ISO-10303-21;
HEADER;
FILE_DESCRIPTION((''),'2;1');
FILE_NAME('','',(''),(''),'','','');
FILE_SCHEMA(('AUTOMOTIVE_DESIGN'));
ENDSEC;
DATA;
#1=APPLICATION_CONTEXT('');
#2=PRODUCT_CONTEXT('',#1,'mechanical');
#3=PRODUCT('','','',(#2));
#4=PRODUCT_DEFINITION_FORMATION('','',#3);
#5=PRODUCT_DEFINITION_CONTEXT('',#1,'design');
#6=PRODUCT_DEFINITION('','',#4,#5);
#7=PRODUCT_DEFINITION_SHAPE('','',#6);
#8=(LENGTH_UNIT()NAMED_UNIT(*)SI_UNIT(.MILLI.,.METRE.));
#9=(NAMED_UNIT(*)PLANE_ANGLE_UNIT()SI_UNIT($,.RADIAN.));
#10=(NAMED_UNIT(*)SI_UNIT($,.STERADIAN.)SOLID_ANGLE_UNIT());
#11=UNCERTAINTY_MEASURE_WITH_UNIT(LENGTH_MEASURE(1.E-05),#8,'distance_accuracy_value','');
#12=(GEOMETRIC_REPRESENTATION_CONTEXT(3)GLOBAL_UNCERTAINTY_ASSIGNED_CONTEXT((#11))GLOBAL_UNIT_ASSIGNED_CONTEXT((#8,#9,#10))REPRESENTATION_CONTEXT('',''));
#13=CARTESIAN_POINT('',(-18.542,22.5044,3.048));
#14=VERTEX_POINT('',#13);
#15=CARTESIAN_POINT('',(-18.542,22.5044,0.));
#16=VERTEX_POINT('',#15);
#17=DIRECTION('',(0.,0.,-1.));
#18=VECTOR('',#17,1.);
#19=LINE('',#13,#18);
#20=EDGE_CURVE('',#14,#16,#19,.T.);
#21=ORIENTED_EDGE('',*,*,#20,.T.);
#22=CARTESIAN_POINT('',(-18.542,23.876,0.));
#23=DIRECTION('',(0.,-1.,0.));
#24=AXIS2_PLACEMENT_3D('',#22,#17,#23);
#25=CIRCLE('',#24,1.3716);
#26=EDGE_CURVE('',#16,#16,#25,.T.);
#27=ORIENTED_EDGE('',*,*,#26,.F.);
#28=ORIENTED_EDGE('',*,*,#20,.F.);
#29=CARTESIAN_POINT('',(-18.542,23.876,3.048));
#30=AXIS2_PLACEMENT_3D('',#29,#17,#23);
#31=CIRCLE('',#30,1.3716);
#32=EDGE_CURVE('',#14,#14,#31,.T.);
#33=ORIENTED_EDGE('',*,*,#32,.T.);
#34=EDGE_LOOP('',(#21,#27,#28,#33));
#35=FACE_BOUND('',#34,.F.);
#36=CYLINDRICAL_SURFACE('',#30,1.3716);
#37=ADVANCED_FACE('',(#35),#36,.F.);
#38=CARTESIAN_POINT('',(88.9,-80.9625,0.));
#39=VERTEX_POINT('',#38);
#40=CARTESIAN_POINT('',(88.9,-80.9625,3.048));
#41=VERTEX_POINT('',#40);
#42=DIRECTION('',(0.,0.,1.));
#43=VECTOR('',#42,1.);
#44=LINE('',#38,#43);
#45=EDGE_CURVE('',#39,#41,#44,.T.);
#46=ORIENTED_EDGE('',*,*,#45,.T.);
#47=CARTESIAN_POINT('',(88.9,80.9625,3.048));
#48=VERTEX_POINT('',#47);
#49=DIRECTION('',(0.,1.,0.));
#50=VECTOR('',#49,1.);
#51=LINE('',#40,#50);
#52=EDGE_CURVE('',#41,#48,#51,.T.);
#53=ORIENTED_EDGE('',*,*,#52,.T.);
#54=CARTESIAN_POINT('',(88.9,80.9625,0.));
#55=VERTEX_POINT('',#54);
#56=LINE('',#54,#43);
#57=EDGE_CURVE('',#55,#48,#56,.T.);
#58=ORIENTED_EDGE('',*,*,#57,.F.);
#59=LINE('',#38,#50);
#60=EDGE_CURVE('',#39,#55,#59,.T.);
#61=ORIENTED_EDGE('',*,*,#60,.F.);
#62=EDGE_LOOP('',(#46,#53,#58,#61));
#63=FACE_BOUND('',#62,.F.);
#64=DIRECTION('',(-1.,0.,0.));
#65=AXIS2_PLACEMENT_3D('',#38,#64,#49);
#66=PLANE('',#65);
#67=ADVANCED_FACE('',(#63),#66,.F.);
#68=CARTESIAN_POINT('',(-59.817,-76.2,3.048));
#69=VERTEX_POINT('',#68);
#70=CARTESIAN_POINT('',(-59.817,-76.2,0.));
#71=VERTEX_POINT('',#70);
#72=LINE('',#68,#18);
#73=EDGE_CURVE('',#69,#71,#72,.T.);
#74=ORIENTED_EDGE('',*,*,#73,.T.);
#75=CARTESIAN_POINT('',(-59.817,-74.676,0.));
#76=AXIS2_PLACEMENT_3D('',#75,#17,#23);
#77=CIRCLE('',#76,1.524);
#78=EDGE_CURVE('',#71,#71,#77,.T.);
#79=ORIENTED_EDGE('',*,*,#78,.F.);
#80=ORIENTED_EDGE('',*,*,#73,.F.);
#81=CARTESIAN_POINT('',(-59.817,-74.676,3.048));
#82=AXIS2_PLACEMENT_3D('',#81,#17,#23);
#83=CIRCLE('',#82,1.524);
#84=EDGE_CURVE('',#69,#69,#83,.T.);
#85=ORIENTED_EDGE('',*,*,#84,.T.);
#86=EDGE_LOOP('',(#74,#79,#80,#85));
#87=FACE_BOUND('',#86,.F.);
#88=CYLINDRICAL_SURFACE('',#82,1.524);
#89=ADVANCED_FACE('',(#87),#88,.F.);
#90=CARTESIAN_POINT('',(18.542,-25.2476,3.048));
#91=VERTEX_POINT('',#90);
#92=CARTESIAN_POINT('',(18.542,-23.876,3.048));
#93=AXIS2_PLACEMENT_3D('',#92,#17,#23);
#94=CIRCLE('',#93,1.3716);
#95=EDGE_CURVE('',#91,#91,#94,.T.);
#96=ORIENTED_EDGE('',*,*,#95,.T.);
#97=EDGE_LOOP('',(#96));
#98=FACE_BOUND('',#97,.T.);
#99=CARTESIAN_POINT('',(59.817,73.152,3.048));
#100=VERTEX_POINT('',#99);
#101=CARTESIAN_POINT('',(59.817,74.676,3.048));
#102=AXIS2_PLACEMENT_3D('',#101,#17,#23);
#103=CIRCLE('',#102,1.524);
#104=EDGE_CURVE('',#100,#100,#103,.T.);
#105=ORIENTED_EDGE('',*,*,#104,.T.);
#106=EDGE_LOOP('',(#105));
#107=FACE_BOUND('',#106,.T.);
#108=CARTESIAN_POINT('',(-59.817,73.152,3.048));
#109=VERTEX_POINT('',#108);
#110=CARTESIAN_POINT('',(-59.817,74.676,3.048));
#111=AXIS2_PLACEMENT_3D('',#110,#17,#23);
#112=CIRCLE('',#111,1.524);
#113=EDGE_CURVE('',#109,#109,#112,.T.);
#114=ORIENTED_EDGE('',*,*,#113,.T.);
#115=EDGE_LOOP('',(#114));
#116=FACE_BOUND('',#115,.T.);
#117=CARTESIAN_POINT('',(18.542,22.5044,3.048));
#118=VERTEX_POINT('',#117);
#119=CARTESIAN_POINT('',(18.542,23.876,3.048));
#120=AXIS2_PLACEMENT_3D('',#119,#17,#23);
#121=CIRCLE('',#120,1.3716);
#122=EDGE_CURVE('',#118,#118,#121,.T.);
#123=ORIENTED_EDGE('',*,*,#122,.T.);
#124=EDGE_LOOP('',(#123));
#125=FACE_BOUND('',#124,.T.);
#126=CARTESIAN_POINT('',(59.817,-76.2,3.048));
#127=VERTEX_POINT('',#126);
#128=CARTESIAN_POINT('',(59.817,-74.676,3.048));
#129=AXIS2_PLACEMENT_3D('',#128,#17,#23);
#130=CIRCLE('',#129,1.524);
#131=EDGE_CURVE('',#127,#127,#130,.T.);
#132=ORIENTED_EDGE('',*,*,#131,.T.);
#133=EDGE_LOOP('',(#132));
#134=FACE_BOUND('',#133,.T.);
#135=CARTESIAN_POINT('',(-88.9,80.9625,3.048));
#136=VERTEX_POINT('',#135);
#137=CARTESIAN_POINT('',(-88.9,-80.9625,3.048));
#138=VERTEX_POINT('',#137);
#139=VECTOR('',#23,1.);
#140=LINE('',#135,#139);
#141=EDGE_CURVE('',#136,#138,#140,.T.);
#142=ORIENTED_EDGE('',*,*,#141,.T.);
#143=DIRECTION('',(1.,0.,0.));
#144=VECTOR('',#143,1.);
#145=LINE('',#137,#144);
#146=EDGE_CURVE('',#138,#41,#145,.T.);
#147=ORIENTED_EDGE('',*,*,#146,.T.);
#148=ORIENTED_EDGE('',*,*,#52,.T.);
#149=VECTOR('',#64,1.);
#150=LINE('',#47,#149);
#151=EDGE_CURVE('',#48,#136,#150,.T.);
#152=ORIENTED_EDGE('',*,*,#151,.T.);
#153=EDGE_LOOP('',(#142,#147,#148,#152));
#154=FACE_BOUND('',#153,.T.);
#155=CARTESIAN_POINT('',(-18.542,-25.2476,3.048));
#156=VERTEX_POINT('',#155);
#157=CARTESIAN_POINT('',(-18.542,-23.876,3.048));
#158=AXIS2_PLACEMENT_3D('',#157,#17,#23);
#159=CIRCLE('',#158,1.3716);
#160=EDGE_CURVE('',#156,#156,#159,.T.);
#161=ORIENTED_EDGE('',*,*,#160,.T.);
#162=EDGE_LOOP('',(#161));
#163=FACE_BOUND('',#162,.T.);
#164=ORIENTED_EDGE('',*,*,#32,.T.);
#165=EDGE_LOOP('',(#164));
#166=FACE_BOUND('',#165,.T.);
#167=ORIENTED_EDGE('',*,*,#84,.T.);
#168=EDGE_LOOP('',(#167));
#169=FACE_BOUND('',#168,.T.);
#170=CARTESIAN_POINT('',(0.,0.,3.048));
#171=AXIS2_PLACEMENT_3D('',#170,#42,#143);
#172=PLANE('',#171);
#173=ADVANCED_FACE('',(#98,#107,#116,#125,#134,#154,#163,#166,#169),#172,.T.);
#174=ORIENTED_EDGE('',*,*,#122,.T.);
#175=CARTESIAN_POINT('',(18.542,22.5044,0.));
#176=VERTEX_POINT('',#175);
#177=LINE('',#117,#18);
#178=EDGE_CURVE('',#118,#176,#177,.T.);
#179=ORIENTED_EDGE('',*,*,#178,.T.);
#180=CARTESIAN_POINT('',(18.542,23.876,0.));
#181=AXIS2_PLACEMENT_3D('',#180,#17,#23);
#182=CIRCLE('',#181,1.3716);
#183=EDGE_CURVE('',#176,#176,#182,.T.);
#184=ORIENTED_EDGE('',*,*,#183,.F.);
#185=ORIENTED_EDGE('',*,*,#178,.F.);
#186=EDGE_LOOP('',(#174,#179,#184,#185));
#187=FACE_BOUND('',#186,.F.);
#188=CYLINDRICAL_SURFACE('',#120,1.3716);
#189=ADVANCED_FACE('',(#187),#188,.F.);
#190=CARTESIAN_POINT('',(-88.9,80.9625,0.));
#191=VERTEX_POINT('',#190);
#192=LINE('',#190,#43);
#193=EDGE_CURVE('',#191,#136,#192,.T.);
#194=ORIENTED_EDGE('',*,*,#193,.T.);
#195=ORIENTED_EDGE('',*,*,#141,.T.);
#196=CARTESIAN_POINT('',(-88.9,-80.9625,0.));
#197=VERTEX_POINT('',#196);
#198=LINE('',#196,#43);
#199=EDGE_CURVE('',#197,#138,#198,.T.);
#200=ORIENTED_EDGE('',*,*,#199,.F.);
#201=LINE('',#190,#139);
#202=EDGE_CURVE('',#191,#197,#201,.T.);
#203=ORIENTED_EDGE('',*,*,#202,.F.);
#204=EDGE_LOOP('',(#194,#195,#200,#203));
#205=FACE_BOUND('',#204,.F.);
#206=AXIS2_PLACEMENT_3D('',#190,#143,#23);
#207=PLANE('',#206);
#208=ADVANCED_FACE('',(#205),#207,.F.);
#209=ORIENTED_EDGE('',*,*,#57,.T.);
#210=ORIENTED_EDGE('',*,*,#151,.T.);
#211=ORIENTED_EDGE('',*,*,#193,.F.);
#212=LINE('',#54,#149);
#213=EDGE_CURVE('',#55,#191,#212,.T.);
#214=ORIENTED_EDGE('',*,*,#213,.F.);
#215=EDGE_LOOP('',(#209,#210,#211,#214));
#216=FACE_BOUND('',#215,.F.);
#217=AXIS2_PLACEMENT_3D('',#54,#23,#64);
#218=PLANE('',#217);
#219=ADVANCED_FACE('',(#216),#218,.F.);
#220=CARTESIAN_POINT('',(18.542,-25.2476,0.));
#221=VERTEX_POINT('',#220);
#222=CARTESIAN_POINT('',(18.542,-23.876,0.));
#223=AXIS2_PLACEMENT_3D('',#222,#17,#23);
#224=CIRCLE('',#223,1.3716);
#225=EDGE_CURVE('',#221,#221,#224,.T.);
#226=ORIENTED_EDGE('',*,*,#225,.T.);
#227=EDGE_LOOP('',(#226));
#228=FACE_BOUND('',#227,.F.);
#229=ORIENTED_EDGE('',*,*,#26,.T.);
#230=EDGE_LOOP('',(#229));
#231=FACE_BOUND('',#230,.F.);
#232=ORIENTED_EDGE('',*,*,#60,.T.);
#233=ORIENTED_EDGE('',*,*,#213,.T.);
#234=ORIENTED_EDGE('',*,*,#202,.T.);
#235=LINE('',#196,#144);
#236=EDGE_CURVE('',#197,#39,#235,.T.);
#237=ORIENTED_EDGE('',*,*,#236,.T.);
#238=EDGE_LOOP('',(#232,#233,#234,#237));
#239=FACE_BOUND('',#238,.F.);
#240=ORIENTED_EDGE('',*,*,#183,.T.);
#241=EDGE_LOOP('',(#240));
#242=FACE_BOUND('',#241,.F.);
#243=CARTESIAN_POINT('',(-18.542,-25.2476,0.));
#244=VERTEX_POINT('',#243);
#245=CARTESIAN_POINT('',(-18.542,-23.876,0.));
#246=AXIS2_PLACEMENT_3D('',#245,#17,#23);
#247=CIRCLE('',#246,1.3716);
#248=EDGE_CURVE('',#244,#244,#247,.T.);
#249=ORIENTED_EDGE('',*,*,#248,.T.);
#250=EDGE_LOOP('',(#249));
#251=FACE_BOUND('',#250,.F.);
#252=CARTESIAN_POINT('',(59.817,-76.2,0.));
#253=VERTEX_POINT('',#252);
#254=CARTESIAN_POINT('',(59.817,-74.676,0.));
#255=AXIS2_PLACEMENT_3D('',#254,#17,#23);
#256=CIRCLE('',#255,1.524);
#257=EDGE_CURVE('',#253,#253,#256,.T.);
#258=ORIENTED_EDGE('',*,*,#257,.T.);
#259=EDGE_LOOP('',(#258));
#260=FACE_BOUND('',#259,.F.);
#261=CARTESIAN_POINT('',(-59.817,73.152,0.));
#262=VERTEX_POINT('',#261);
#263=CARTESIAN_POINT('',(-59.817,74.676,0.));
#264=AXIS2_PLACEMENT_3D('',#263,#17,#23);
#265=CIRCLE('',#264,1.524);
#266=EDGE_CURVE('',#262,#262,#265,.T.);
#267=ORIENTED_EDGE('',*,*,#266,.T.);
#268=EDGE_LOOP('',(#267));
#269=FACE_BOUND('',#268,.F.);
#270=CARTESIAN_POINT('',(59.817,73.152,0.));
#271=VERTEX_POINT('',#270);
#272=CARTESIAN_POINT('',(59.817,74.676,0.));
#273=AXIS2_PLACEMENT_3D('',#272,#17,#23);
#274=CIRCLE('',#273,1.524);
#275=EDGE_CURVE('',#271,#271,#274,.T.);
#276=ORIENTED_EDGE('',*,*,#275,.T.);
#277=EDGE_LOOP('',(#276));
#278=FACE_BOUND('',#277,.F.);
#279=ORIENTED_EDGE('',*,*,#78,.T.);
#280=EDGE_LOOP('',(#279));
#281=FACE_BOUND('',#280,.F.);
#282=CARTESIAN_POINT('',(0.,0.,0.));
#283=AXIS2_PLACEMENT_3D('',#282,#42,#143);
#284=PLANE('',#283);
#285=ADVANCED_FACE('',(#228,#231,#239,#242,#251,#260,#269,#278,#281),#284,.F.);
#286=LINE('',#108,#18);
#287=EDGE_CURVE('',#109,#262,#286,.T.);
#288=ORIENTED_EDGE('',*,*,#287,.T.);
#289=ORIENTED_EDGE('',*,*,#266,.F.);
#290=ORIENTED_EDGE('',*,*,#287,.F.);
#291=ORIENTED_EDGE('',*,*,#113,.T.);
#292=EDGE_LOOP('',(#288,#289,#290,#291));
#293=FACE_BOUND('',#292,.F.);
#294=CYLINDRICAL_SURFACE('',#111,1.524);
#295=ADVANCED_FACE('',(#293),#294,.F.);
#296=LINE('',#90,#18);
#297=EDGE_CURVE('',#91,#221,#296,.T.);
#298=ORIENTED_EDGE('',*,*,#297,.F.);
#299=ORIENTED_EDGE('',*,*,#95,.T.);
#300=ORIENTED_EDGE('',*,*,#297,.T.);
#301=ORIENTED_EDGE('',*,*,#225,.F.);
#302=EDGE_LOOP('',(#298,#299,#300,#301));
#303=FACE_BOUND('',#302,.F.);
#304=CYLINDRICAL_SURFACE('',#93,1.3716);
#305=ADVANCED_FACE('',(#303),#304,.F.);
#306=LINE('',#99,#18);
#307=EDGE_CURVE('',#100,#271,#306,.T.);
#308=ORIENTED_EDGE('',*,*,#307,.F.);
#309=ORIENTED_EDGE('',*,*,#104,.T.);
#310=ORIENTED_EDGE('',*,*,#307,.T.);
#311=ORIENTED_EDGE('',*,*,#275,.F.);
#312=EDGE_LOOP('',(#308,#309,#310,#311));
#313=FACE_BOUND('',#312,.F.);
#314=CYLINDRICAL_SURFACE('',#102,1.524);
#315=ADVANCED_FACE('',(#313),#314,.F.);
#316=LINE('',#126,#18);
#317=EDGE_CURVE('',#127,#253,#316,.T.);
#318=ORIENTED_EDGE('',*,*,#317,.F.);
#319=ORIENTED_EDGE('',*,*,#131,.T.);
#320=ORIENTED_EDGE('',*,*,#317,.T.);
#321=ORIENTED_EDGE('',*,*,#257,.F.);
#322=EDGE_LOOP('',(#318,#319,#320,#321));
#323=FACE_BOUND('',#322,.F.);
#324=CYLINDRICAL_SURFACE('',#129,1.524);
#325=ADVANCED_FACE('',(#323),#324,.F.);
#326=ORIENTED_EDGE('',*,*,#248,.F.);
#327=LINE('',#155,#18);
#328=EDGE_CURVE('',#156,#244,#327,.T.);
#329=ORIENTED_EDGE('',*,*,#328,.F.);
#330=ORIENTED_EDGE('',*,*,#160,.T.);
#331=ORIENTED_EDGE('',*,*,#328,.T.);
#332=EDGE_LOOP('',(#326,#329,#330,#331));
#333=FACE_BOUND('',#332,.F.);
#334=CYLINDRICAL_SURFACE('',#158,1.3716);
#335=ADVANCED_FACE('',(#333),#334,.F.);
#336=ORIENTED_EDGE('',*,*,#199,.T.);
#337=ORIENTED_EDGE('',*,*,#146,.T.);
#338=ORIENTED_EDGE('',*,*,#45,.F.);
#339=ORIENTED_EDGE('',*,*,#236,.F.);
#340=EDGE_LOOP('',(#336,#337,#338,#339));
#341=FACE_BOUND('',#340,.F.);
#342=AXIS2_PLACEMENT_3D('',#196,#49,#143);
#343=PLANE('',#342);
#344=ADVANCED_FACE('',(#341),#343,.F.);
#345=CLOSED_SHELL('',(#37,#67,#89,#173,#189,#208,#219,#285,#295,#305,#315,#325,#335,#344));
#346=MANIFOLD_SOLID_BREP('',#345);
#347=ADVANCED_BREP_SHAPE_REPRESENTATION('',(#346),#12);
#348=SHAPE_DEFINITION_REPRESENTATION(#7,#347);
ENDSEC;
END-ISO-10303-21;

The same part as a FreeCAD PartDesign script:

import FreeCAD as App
import Part
import Sketcher
Q = App.Units.Quantity

doc = App.newDocument("Part")
body = doc.addObject("PartDesign::Body", "Body")

# Sketch on XY plane
sketch1 = doc.addObject("Sketcher::SketchObject", "Sketch")
body.addObject(sketch1)
sketch1.AttachmentSupport = (doc.XY_Plane, [""])
sketch1.MapMode = "FlatFace"
sketch1.addGeometry([
    Part.LineSegment(App.Vector(-89, 81, 0), App.Vector(-89, -81, 0)),
    Part.LineSegment(App.Vector(-89, -81, 0), App.Vector(89, -81, 0)),
    Part.LineSegment(App.Vector(89, -81, 0), App.Vector(89, 81, 0)),
    Part.LineSegment(App.Vector(89, 81, 0), App.Vector(-89, 81, 0)),
], False)
sketch1.addConstraint([
    Sketcher.Constraint("Coincident", 0, 2, 1, 1),
    Sketcher.Constraint("Coincident", 1, 2, 2, 1),
    Sketcher.Constraint("Coincident", 2, 2, 3, 1),
    Sketcher.Constraint("Coincident", 3, 2, 0, 1),
    Sketcher.Constraint("Vertical", 0),
    Sketcher.Constraint("Horizontal", 1),
    Sketcher.Constraint("Vertical", 2),
    Sketcher.Constraint("Horizontal", 3),
    Sketcher.Constraint("Symmetric", 0, 2, 2, 2, -1, 1),
    Sketcher.Constraint("DistanceX", 1, 1, 1, 2, Q("7 in")),
    Sketcher.Constraint("DistanceY", 0, 2, 0, 1, Q("6.375 in")),
])
pad1 = doc.addObject("PartDesign::Pad", "Pad")
body.addObject(pad1)
pad1.Profile = sketch1
pad1.Length = Q("0.12 in")

# Sketch on XY plane
sketch2 = doc.addObject("Sketcher::SketchObject", "Sketch001")
body.addObject(sketch2)
sketch2.AttachmentSupport = (doc.XY_Plane, [""])
sketch2.MapMode = "FlatFace"
sketch2.AttachmentOffset = App.Placement(App.Vector(0, 0, 0.12 * 25.4), App.Rotation())
sketch2.addGeometry([
    Part.Circle(App.Vector(-59.8, 74.7, 0), App.Vector(0, 0, 1), 1.5),
    Part.Circle(App.Vector(-59.8, -74.7, 0), App.Vector(0, 0, 1), 1.5),
    Part.Circle(App.Vector(59.8, -74.7, 0), App.Vector(0, 0, 1), 1.5),
    Part.Circle(App.Vector(59.8, 74.7, 0), App.Vector(0, 0, 1), 1.5),
], False)
sketch2.addConstraint([
    Sketcher.Constraint("Equal", 0, 1),
    Sketcher.Constraint("Equal", 1, 2),
    Sketcher.Constraint("Equal", 2, 3),
    Sketcher.Constraint("Symmetric", 0, 3, 2, 3, -1, 1),
    Sketcher.Constraint("Symmetric", 1, 3, 3, 3, -1, 1),
    Sketcher.Constraint("Symmetric", 1, 3, 2, 3, -2),
    Sketcher.Constraint("Diameter", 0, Q("0.12 in")),
    Sketcher.Constraint("DistanceY", -1, 1, 0, 3, Q("2.94 in")),
    Sketcher.Constraint("DistanceX", 1, 3, 2, 3, Q("4.71 in")),
])
doc.recompute()
hole = doc.addObject("PartDesign::Hole", "Hole")
body.addObject(hole)
hole.Profile = sketch2
hole.ThreadType = "None"
hole.Diameter = Q("0.12 in")
hole.DepthType = "ThroughAll"

# Sketch on XY plane
sketch3 = doc.addObject("Sketcher::SketchObject", "Sketch002")
body.addObject(sketch3)
sketch3.AttachmentSupport = (doc.XY_Plane, [""])
sketch3.MapMode = "FlatFace"
sketch3.AttachmentOffset = App.Placement(App.Vector(0, 0, 0.12 * 25.4), App.Rotation())
sketch3.addGeometry([
    Part.Circle(App.Vector(-18.5, 23.9, 0), App.Vector(0, 0, 1), 1.4),
    Part.Circle(App.Vector(18.5, 23.9, 0), App.Vector(0, 0, 1), 1.4),
    Part.Circle(App.Vector(18.5, -23.9, 0), App.Vector(0, 0, 1), 1.4),
    Part.Circle(App.Vector(-18.5, -23.9, 0), App.Vector(0, 0, 1), 1.4),
], False)
sketch3.addConstraint([
    Sketcher.Constraint("Equal", 0, 1),
    Sketcher.Constraint("Equal", 1, 2),
    Sketcher.Constraint("Equal", 2, 3),
    Sketcher.Constraint("Symmetric", 0, 3, 2, 3, -1, 1),
    Sketcher.Constraint("Symmetric", 1, 3, 3, 3, -1, 1),
    Sketcher.Constraint("Symmetric", 0, 3, 1, 3, -2),
    Sketcher.Constraint("Diameter", 0, Q("0.108 in")),
    Sketcher.Constraint("DistanceX", 0, 3, -1, 1, Q("0.73 in")),
    Sketcher.Constraint("DistanceY", -1, 1, 0, 3, Q("0.94 in")),
])
doc.recompute()
hole2 = doc.addObject("PartDesign::Hole", "Hole001")
body.addObject(hole2)
hole2.Profile = sketch3
hole2.ThreadType = "None"
hole2.Diameter = Q("0.108 in")
hole2.DepthType = "ThroughAll"

doc.recompute()
